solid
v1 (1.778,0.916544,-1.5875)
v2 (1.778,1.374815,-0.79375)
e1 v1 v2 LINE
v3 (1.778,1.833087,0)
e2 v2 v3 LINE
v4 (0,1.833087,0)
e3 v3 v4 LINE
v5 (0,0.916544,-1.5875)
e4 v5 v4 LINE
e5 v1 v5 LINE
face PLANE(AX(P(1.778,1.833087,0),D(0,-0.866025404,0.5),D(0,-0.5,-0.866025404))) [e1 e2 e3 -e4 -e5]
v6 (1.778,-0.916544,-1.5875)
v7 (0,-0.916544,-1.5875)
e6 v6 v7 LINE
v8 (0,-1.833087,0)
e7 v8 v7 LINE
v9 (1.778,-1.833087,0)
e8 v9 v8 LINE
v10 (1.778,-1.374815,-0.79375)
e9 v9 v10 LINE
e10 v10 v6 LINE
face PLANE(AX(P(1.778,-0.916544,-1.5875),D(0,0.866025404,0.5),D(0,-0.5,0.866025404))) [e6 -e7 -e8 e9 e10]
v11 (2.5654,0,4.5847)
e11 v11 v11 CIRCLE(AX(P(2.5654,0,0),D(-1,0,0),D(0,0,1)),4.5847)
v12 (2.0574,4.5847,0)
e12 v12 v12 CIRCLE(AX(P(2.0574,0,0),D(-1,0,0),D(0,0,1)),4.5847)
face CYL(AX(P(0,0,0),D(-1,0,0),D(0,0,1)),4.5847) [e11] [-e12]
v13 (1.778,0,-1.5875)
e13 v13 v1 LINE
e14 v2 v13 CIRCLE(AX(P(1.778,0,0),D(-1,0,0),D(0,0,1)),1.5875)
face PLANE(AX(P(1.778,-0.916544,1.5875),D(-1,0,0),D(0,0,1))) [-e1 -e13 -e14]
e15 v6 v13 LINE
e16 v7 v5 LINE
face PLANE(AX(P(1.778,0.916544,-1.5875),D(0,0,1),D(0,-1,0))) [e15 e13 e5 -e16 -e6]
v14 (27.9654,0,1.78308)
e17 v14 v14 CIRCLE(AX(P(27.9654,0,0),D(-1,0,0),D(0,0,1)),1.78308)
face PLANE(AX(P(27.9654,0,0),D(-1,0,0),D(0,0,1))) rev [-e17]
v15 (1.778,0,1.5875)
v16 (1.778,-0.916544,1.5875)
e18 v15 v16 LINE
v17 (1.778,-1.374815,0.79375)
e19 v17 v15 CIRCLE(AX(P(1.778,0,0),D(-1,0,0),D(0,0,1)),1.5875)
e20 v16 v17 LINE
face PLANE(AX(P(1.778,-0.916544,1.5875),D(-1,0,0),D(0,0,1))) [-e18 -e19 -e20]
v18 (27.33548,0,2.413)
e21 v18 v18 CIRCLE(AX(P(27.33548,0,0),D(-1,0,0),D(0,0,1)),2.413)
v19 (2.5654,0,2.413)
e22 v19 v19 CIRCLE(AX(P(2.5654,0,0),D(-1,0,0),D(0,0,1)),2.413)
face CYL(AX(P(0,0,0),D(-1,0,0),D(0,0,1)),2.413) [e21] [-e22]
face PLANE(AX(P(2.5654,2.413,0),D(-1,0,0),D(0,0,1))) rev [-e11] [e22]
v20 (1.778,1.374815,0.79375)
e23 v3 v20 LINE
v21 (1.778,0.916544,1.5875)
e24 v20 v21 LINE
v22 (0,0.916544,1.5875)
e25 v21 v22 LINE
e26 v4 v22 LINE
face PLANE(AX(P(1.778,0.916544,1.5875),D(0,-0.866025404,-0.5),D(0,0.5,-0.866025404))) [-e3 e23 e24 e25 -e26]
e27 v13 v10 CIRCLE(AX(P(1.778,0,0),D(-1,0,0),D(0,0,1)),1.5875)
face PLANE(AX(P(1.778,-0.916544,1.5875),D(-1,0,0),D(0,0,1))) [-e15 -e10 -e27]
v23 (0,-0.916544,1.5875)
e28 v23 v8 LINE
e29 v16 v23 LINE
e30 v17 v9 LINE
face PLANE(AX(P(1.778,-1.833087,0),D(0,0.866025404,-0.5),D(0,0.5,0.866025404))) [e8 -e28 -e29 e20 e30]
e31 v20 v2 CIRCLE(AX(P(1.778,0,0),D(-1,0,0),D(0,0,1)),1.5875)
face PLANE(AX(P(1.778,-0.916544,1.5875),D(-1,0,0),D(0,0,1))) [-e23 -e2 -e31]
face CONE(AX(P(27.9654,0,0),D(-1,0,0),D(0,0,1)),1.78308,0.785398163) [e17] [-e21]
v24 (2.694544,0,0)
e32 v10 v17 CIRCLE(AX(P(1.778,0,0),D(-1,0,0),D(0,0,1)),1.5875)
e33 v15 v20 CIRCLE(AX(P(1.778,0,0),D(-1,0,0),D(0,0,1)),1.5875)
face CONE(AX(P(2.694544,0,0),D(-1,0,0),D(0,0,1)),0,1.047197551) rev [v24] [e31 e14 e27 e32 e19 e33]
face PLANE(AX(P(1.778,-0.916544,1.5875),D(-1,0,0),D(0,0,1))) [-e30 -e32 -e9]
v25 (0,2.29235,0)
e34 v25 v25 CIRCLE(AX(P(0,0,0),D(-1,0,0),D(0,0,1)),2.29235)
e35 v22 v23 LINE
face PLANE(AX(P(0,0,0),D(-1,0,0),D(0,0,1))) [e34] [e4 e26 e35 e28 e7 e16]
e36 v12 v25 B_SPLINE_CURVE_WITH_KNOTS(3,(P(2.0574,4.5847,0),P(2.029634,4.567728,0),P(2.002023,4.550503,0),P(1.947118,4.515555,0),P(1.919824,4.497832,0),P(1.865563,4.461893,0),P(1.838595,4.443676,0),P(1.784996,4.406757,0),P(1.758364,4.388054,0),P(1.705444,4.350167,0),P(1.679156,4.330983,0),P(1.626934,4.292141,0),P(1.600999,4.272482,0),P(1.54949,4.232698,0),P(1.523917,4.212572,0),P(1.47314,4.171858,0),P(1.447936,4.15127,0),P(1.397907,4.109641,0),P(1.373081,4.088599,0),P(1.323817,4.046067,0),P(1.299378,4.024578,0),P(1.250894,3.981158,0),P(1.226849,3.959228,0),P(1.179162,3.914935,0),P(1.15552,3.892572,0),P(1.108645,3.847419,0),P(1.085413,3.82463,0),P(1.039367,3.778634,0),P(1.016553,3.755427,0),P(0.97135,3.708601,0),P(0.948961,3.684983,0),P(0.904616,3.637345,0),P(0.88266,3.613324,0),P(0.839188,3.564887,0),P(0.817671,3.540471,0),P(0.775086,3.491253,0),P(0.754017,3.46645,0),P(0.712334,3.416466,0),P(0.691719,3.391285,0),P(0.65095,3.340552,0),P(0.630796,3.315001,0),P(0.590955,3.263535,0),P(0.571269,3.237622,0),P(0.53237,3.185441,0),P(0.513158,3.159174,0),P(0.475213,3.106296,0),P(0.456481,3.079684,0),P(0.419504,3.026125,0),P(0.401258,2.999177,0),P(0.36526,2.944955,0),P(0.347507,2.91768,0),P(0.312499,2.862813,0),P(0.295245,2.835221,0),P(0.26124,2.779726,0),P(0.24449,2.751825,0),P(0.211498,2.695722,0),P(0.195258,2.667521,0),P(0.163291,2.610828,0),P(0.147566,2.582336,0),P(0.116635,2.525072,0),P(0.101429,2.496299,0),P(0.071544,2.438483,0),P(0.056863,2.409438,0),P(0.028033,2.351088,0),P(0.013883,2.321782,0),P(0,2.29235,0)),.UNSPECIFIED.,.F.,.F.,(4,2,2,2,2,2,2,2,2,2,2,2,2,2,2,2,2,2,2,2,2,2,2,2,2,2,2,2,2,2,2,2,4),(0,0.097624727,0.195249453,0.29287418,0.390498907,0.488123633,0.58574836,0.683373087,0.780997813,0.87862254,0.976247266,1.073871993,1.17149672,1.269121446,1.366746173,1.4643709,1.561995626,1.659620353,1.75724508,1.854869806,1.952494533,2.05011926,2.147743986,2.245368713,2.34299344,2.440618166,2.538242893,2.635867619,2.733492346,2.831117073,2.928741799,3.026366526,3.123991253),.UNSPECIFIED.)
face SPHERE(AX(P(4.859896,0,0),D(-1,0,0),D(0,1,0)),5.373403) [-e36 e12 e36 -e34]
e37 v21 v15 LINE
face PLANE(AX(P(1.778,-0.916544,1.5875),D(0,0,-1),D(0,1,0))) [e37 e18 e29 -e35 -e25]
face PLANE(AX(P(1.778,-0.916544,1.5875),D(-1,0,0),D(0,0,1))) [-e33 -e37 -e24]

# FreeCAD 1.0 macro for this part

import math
import FreeCAD as App
import Part
import Sketcher
Q = App.Units.Quantity

doc = App.newDocument("Part")
body = doc.addObject("PartDesign::Body", "Body")

sketch1 = body.newObject("Sketcher::SketchObject", "Sketch")
sketch1.AttachmentSupport = (doc.getObject("XY_Plane"), [""])
sketch1.MapMode = "FlatFace"
sketch1.addGeometry(Part.LineSegment(App.Vector(28, 0, 0), App.Vector(28, 1.8, 0)), False)
sketch1.addGeometry(Part.LineSegment(App.Vector(28, 1.8, 0), App.Vector(27.3, 2.4, 0)), False)
sketch1.addGeometry(Part.LineSegment(App.Vector(27.3, 2.4, 0), App.Vector(2.6, 2.4, 0)), False)
sketch1.addGeometry(Part.LineSegment(App.Vector(2.6, 2.4, 0), App.Vector(2.6, 4.6, 0)), False)
sketch1.addGeometry(Part.LineSegment(App.Vector(2.6, 4.6, 0), App.Vector(2.1, 4.6, 0)), False)
sketch1.addGeometry(Part.ArcOfCircle(Part.Circle(App.Vector(4.9, 0, 0), App.Vector(0, 0, 1), 5.4), math.radians(121), math.radians(155)), False)
sketch1.addGeometry(Part.LineSegment(App.Vector(0, 2.3, 0), App.Vector(0, 0, 0)), False)
sketch1.addGeometry(Part.LineSegment(App.Vector(0, 0, 0), App.Vector(28, 0, 0)), False)
sketch1.addConstraint(Sketcher.Constraint("Coincident", 0, 2, 1, 1))
sketch1.addConstraint(Sketcher.Constraint("Coincident", 1, 2, 2, 1))
sketch1.addConstraint(Sketcher.Constraint("Coincident", 2, 2, 3, 1))
sketch1.addConstraint(Sketcher.Constraint("Coincident", 3, 2, 4, 1))
sketch1.addConstraint(Sketcher.Constraint("Coincident", 4, 2, 5, 1))
sketch1.addConstraint(Sketcher.Constraint("Coincident", 5, 2, 6, 1))
sketch1.addConstraint(Sketcher.Constraint("Coincident", 6, 2, 7, 1))
sketch1.addConstraint(Sketcher.Constraint("Coincident", 7, 2, 0, 1))
sketch1.addConstraint(Sketcher.Constraint("Vertical", 0))
sketch1.addConstraint(Sketcher.Constraint("Horizontal", 2))
sketch1.addConstraint(Sketcher.Constraint("Vertical", 3))
sketch1.addConstraint(Sketcher.Constraint("Horizontal", 4))
sketch1.addConstraint(Sketcher.Constraint("Vertical", 6))
sketch1.addConstraint(Sketcher.Constraint("Horizontal", 7))
sketch1.addConstraint(Sketcher.Constraint("Coincident", 6, 2, -1, 1))
sketch1.addConstraint(Sketcher.Constraint("PointOnObject", 5, 3, -1))
sketch1.addConstraint(Sketcher.Constraint("Angle", 1, Q("135 deg")))
sketch1.addConstraint(Sketcher.Constraint("DistanceX", 2, 2, 0, 2, Q("1 in")))
sketch1.addConstraint(Sketcher.Constraint("DistanceX", 4, 2, 4, 1, Q("0.02 in")))
sketch1.addConstraint(Sketcher.Constraint("DistanceX", 7, 1, 7, 2, Q("1.101 in")))
sketch1.addConstraint(Sketcher.Constraint("DistanceX", 2, 2, 2, 1, Q("0.9752 in")))
sketch1.addConstraint(Sketcher.Constraint("DistanceY", 0, 1, 0, 2, Q("0.0702 in")))
sketch1.addConstraint(Sketcher.Constraint("DistanceY", 3, 1, 3, 2, Q("0.0855 in")))
sketch1.addConstraint(Sketcher.Constraint("Radius", 5, 5.373403))
revolution = body.newObject("PartDesign::Revolution", "Revolution")
revolution.Profile = sketch1
revolution.ReferenceAxis = (sketch1, ["H_Axis"])
revolution.Angle = 360

sketch2 = body.newObject("Sketcher::SketchObject", "Sketch001")
sketch2.AttachmentSupport = (doc.getObject("XY_Plane"), [""])
sketch2.MapMode = "FlatFace"
sketch2.addGeometry(Part.LineSegment(App.Vector(1.8, 1.6, 0), App.Vector(0, 1.6, 0)), False)
sketch2.addGeometry(Part.LineSegment(App.Vector(0, 1.6, 0), App.Vector(0, 0, 0)), False)
sketch2.addGeometry(Part.LineSegment(App.Vector(0, 0, 0), App.Vector(2.7, 0, 0)), False)
sketch2.addGeometry(Part.LineSegment(App.Vector(2.7, 0, 0), App.Vector(1.8, 1.6, 0)), False)
sketch2.addConstraint(Sketcher.Constraint("Coincident", 0, 2, 1, 1))
sketch2.addConstraint(Sketcher.Constraint("Coincident", 1, 2, 2, 1))
sketch2.addConstraint(Sketcher.Constraint("Coincident", 2, 2, 3, 1))
sketch2.addConstraint(Sketcher.Constraint("Coincident", 3, 2, 0, 1))
sketch2.addConstraint(Sketcher.Constraint("Horizontal", 0))
sketch2.addConstraint(Sketcher.Constraint("Vertical", 1))
sketch2.addConstraint(Sketcher.Constraint("Horizontal", 2))
sketch2.addConstraint(Sketcher.Constraint("Coincident", 1, 2, -1, 1))
sketch2.addConstraint(Sketcher.Constraint("Angle", 3, Q("120 deg")))
sketch2.addConstraint(Sketcher.Constraint("DistanceX", 0, 2, 0, 1, Q("0.07 in")))
sketch2.addConstraint(Sketcher.Constraint("DistanceY", 1, 2, 1, 1, Q("0.0625 in")))
groove = body.newObject("PartDesign::Groove", "Groove")
groove.Profile = sketch2
groove.ReferenceAxis = (sketch2, ["H_Axis"])
groove.Angle = 360

sketch3 = body.newObject("Sketcher::SketchObject", "Sketch002")
sketch3.AttachmentSupport = (doc.getObject("YZ_Plane"), [""])
sketch3.MapMode = "FlatFace"
sketch3.addGeometry(Part.LineSegment(App.Vector(0.9, 1.6, 0), App.Vector(-0.9, 1.6, 0)), False)
sketch3.addGeometry(Part.LineSegment(App.Vector(-0.9, 1.6, 0), App.Vector(-1.8, 0, 0)), False)
sketch3.addGeometry(Part.LineSegment(App.Vector(-1.8, 0, 0), App.Vector(-0.9, -1.6, 0)), False)
sketch3.addGeometry(Part.LineSegment(App.Vector(-0.9, -1.6, 0), App.Vector(0.9, -1.6, 0)), False)
sketch3.addGeometry(Part.LineSegment(App.Vector(0.9, -1.6, 0), App.Vector(1.8, 0, 0)), False)
sketch3.addGeometry(Part.LineSegment(App.Vector(1.8, 0, 0), App.Vector(0.9, 1.6, 0)), False)
sketch3.addConstraint(Sketcher.Constraint("Coincident", 0, 2, 1, 1))
sketch3.addConstraint(Sketcher.Constraint("Coincident", 1, 2, 2, 1))
sketch3.addConstraint(Sketcher.Constraint("Coincident", 2, 2, 3, 1))
sketch3.addConstraint(Sketcher.Constraint("Coincident", 3, 2, 4, 1))
sketch3.addConstraint(Sketcher.Constraint("Coincident", 4, 2, 5, 1))
sketch3.addConstraint(Sketcher.Constraint("Coincident", 5, 2, 0, 1))
sketch3.addConstraint(Sketcher.Constraint("Horizontal", 0))
sketch3.addConstraint(Sketcher.Constraint("Horizontal", 3))
sketch3.addConstraint(Sketcher.Constraint("Symmetric", 0, 2, 3, 2, -1, 1))
sketch3.addConstraint(Sketcher.Constraint("Symmetric", 1, 2, 4, 2, -1, 1))
sketch3.addConstraint(Sketcher.Constraint("PointOnObject", 1, 2, -1))
sketch3.addConstraint(Sketcher.Constraint("Parallel", 2, 5))
sketch3.addConstraint(Sketcher.Constraint("Vertical", 0, 2, 2, 2))
sketch3.addConstraint(Sketcher.Constraint("Angle", 1, Q("-120 deg")))
sketch3.addConstraint(Sketcher.Constraint("DistanceY", -1, 1, 0, 2, Q("0.0625 in")))
sketch3.addConstraint(Sketcher.Constraint("DistanceX", 0, 2, 0, 1, 1.833087))
pocket1 = body.newObject("PartDesign::Pocket", "Pocket")
pocket1.Profile = sketch3
pocket1.Length = Q("0.07 in")
pocket1.Reversed = True

doc.recompute()
